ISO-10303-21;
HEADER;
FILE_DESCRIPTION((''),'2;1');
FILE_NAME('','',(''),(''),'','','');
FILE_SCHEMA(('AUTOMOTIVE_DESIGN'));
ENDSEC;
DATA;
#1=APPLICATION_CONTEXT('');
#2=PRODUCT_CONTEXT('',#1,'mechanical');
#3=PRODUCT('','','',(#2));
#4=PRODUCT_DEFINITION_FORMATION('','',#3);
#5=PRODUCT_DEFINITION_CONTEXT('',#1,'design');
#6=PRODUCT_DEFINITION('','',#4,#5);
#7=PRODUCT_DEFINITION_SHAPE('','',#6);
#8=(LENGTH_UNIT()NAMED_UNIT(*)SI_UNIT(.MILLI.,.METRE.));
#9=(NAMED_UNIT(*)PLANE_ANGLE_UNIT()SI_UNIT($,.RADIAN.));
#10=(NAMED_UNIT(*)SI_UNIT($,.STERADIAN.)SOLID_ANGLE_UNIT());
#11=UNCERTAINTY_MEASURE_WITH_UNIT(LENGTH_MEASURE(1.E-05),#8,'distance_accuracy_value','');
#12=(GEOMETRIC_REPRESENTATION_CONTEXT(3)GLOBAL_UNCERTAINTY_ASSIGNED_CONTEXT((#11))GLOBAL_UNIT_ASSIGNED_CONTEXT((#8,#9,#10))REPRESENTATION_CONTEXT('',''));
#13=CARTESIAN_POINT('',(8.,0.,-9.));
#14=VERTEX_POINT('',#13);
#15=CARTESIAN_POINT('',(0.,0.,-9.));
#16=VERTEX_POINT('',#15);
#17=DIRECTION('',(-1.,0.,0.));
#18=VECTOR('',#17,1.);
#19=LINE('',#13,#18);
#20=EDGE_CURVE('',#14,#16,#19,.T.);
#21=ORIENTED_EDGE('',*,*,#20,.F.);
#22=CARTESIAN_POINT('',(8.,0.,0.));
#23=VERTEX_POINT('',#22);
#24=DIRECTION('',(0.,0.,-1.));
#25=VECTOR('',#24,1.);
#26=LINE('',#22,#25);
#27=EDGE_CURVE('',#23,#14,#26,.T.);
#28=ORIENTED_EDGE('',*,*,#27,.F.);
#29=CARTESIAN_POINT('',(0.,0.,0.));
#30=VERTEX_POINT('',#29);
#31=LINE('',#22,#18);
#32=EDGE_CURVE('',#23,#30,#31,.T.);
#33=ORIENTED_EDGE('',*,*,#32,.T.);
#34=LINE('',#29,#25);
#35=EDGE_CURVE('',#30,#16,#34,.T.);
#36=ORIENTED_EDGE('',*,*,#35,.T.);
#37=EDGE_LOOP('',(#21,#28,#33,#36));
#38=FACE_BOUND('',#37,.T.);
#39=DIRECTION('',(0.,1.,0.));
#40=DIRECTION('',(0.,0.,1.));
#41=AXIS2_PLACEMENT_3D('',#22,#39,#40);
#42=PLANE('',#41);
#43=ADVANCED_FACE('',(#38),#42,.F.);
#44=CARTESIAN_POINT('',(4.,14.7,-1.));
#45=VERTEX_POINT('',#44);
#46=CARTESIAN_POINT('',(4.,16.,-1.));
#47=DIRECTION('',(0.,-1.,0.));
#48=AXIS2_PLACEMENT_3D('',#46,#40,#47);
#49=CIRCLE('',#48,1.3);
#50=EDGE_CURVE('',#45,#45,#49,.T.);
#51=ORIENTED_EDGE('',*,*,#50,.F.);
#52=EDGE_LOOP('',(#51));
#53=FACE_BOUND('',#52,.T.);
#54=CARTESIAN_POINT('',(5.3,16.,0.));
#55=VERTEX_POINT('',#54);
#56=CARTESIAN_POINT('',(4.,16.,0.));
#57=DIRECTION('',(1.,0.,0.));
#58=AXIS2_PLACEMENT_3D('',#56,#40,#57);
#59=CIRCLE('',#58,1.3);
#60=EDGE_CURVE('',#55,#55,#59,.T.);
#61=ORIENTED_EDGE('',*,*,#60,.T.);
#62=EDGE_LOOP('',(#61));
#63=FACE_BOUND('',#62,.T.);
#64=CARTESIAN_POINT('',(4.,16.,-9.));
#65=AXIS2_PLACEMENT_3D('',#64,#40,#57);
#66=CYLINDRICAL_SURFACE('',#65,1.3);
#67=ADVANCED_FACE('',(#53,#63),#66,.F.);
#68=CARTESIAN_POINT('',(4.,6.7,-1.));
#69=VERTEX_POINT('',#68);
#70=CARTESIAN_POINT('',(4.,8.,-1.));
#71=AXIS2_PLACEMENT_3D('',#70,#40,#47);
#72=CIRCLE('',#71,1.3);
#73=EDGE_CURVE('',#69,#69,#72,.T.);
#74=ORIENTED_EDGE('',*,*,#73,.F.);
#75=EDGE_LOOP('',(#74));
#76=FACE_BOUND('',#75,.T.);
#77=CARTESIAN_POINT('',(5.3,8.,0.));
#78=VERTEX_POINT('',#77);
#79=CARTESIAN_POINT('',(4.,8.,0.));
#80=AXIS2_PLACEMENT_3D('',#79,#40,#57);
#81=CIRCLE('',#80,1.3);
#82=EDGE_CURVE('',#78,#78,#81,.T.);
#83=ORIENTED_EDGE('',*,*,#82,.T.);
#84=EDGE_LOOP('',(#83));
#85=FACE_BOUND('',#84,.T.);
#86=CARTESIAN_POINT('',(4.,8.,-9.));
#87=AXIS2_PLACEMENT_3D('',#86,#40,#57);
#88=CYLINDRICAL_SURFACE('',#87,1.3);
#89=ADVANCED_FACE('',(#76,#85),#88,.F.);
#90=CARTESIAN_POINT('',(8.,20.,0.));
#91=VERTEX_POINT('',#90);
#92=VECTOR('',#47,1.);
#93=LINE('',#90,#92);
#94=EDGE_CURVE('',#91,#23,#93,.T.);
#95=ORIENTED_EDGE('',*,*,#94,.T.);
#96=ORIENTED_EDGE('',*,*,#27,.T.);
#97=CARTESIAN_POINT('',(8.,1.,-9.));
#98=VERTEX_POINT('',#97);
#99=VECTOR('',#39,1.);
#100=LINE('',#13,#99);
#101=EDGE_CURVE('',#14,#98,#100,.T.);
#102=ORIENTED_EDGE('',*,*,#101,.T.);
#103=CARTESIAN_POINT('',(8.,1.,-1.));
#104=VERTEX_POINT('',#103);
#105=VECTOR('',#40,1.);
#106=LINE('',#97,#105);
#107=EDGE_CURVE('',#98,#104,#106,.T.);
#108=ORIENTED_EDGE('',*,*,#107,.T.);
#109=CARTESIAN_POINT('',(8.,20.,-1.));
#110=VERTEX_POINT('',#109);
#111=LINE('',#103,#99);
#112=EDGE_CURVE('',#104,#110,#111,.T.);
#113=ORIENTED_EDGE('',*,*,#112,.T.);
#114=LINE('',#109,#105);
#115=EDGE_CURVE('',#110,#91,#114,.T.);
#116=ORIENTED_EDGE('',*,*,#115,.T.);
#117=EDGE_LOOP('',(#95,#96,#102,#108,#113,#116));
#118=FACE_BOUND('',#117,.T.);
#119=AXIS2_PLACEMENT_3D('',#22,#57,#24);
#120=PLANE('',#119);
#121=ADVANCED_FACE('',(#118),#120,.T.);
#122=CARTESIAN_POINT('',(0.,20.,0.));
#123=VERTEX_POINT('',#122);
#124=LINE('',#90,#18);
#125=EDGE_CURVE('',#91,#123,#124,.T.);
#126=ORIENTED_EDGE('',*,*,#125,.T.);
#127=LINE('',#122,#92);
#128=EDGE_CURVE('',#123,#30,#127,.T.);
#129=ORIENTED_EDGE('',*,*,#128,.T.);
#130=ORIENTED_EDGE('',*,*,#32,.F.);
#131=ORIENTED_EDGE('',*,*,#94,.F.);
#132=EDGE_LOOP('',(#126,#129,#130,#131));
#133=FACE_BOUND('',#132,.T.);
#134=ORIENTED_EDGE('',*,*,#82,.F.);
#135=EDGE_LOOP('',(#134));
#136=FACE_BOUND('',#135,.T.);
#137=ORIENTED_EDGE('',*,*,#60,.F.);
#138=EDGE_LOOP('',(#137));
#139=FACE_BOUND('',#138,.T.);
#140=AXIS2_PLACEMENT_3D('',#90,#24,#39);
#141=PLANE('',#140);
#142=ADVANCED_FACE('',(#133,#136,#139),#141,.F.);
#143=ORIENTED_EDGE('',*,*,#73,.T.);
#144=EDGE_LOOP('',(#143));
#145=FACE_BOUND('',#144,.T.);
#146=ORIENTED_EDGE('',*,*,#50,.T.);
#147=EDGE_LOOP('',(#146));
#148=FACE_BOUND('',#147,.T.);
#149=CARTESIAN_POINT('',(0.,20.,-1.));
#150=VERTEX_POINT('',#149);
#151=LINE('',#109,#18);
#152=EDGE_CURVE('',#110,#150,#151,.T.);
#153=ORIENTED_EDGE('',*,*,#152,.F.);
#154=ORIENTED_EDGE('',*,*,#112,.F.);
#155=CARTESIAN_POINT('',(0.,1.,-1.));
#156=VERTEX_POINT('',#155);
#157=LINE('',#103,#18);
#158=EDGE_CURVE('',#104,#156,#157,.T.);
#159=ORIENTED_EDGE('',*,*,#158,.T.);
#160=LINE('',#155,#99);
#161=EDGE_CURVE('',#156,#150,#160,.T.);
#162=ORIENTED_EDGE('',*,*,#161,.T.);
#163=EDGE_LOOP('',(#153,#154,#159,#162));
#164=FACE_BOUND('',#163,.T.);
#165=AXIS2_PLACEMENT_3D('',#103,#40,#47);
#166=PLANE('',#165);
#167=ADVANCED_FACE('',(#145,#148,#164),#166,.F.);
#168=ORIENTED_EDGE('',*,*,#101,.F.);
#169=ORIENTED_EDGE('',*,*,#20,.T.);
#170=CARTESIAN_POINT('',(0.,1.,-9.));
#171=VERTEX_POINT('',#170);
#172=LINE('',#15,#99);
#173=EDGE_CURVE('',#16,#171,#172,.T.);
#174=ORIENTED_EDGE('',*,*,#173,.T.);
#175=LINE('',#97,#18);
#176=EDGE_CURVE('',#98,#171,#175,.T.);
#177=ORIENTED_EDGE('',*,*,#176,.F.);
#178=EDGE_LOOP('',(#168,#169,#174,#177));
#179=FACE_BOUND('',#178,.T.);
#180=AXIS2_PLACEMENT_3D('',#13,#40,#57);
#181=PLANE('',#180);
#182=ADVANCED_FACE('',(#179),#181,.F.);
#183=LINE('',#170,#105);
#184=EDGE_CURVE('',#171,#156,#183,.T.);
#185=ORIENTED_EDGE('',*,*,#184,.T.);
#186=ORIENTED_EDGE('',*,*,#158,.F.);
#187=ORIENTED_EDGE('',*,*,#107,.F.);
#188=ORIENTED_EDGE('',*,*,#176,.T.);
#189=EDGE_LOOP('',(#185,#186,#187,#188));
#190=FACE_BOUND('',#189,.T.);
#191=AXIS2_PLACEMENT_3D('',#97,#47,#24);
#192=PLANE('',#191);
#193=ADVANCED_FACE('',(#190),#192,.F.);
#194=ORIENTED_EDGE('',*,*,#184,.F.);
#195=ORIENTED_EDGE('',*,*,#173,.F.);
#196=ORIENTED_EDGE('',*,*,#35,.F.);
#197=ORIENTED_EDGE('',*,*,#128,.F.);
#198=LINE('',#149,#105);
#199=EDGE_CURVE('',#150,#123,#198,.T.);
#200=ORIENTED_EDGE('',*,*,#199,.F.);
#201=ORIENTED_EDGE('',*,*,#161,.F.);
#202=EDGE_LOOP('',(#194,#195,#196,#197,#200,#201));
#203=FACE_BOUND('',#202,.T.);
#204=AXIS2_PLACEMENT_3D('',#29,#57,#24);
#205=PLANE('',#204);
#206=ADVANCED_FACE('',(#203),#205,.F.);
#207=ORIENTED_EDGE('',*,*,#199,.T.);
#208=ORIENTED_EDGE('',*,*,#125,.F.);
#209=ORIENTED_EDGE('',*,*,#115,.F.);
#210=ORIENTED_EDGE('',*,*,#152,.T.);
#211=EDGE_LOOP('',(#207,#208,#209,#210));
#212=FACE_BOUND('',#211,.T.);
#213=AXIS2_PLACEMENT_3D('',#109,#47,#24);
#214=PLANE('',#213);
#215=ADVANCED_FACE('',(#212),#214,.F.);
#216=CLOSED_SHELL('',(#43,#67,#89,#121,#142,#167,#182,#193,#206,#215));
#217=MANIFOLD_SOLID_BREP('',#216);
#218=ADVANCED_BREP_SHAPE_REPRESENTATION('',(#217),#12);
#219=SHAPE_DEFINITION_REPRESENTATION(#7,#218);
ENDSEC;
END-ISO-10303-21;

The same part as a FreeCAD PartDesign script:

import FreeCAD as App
import Part
import Sketcher
Q = App.Units.Quantity

doc = App.newDocument("Part")
body = doc.addObject("PartDesign::Body", "Body")

# Sketch on YZ plane
sketch1 = body.newObject("Sketcher::SketchObject", "Sketch")
sketch1.AttachmentSupport = (doc.getObject("YZ_Plane"), [""])
sketch1.MapMode = "FlatFace"
sketch1.addGeometry([
    Part.LineSegment(App.Vector(0, 0, 0), App.Vector(0, -9, 0)),  # 0
    Part.LineSegment(App.Vector(0, -9, 0), App.Vector(1, -9, 0)),  # 1
    Part.LineSegment(App.Vector(1, -9, 0), App.Vector(1, -1, 0)),  # 2
    Part.LineSegment(App.Vector(1, -1, 0), App.Vector(20, -1, 0)),  # 3
    Part.LineSegment(App.Vector(20, -1, 0), App.Vector(20, 0, 0)),  # 4
    Part.LineSegment(App.Vector(20, 0, 0), App.Vector(0, 0, 0)),  # 5
], False)
sketch1.addConstraint([
    Sketcher.Constraint("Coincident", 0, 2, 1, 1),
    Sketcher.Constraint("Coincident", 1, 2, 2, 1),
    Sketcher.Constraint("Coincident", 2, 2, 3, 1),
    Sketcher.Constraint("Coincident", 3, 2, 4, 1),
    Sketcher.Constraint("Coincident", 4, 2, 5, 1),
    Sketcher.Constraint("Coincident", 5, 2, 0, 1),
    Sketcher.Constraint("Vertical", 0),
    Sketcher.Constraint("Horizontal", 1),
    Sketcher.Constraint("Vertical", 2),
    Sketcher.Constraint("Horizontal", 3),
    Sketcher.Constraint("Vertical", 4),
    Sketcher.Constraint("Horizontal", 5),
    Sketcher.Constraint("Coincident", 5, 2, -1, 1),
    Sketcher.Constraint("Equal", 1, 4),
    Sketcher.Constraint("DistanceX", 1, 1, 1, 2, Q("1 mm")),
    Sketcher.Constraint("DistanceX", 3, 1, 3, 2, Q("19 mm")),
    Sketcher.Constraint("DistanceY", 0, 2, 0, 1, Q("9 mm")),
])
pad1 = body.newObject("PartDesign::Pad", "Pad")
pad1.Profile = sketch1
pad1.Length = 8

# Sketch on XY plane
sketch2 = body.newObject("Sketcher::SketchObject", "Sketch001")
sketch2.AttachmentSupport = (doc.getObject("XY_Plane"), [""])
sketch2.MapMode = "FlatFace"
sketch2.addGeometry([
    Part.Circle(App.Vector(4, 16, 0), App.Vector(0, 0, 1), 1.3),
    Part.Circle(App.Vector(4, 8, 0), App.Vector(0, 0, 1), 1.3),
], False)
sketch2.addConstraint([
    Sketcher.Constraint("Equal", 0, 1),
    Sketcher.Constraint("Vertical", 0, 3, 1, 3),
    Sketcher.Constraint("Diameter", 0, Q("2.6 mm")),
    Sketcher.Constraint("DistanceX", -1, 1, 0, 3, Q("4 mm")),
    Sketcher.Constraint("DistanceY", -1, 1, 0, 3, Q("16 mm")),
    Sketcher.Constraint("DistanceY", -1, 1, 1, 3, Q("8 mm")),
])
pocket1 = body.newObject("PartDesign::Pocket", "Pocket")
pocket1.Profile = sketch2
pocket1.Type = "ThroughAll"

doc.recompute()
